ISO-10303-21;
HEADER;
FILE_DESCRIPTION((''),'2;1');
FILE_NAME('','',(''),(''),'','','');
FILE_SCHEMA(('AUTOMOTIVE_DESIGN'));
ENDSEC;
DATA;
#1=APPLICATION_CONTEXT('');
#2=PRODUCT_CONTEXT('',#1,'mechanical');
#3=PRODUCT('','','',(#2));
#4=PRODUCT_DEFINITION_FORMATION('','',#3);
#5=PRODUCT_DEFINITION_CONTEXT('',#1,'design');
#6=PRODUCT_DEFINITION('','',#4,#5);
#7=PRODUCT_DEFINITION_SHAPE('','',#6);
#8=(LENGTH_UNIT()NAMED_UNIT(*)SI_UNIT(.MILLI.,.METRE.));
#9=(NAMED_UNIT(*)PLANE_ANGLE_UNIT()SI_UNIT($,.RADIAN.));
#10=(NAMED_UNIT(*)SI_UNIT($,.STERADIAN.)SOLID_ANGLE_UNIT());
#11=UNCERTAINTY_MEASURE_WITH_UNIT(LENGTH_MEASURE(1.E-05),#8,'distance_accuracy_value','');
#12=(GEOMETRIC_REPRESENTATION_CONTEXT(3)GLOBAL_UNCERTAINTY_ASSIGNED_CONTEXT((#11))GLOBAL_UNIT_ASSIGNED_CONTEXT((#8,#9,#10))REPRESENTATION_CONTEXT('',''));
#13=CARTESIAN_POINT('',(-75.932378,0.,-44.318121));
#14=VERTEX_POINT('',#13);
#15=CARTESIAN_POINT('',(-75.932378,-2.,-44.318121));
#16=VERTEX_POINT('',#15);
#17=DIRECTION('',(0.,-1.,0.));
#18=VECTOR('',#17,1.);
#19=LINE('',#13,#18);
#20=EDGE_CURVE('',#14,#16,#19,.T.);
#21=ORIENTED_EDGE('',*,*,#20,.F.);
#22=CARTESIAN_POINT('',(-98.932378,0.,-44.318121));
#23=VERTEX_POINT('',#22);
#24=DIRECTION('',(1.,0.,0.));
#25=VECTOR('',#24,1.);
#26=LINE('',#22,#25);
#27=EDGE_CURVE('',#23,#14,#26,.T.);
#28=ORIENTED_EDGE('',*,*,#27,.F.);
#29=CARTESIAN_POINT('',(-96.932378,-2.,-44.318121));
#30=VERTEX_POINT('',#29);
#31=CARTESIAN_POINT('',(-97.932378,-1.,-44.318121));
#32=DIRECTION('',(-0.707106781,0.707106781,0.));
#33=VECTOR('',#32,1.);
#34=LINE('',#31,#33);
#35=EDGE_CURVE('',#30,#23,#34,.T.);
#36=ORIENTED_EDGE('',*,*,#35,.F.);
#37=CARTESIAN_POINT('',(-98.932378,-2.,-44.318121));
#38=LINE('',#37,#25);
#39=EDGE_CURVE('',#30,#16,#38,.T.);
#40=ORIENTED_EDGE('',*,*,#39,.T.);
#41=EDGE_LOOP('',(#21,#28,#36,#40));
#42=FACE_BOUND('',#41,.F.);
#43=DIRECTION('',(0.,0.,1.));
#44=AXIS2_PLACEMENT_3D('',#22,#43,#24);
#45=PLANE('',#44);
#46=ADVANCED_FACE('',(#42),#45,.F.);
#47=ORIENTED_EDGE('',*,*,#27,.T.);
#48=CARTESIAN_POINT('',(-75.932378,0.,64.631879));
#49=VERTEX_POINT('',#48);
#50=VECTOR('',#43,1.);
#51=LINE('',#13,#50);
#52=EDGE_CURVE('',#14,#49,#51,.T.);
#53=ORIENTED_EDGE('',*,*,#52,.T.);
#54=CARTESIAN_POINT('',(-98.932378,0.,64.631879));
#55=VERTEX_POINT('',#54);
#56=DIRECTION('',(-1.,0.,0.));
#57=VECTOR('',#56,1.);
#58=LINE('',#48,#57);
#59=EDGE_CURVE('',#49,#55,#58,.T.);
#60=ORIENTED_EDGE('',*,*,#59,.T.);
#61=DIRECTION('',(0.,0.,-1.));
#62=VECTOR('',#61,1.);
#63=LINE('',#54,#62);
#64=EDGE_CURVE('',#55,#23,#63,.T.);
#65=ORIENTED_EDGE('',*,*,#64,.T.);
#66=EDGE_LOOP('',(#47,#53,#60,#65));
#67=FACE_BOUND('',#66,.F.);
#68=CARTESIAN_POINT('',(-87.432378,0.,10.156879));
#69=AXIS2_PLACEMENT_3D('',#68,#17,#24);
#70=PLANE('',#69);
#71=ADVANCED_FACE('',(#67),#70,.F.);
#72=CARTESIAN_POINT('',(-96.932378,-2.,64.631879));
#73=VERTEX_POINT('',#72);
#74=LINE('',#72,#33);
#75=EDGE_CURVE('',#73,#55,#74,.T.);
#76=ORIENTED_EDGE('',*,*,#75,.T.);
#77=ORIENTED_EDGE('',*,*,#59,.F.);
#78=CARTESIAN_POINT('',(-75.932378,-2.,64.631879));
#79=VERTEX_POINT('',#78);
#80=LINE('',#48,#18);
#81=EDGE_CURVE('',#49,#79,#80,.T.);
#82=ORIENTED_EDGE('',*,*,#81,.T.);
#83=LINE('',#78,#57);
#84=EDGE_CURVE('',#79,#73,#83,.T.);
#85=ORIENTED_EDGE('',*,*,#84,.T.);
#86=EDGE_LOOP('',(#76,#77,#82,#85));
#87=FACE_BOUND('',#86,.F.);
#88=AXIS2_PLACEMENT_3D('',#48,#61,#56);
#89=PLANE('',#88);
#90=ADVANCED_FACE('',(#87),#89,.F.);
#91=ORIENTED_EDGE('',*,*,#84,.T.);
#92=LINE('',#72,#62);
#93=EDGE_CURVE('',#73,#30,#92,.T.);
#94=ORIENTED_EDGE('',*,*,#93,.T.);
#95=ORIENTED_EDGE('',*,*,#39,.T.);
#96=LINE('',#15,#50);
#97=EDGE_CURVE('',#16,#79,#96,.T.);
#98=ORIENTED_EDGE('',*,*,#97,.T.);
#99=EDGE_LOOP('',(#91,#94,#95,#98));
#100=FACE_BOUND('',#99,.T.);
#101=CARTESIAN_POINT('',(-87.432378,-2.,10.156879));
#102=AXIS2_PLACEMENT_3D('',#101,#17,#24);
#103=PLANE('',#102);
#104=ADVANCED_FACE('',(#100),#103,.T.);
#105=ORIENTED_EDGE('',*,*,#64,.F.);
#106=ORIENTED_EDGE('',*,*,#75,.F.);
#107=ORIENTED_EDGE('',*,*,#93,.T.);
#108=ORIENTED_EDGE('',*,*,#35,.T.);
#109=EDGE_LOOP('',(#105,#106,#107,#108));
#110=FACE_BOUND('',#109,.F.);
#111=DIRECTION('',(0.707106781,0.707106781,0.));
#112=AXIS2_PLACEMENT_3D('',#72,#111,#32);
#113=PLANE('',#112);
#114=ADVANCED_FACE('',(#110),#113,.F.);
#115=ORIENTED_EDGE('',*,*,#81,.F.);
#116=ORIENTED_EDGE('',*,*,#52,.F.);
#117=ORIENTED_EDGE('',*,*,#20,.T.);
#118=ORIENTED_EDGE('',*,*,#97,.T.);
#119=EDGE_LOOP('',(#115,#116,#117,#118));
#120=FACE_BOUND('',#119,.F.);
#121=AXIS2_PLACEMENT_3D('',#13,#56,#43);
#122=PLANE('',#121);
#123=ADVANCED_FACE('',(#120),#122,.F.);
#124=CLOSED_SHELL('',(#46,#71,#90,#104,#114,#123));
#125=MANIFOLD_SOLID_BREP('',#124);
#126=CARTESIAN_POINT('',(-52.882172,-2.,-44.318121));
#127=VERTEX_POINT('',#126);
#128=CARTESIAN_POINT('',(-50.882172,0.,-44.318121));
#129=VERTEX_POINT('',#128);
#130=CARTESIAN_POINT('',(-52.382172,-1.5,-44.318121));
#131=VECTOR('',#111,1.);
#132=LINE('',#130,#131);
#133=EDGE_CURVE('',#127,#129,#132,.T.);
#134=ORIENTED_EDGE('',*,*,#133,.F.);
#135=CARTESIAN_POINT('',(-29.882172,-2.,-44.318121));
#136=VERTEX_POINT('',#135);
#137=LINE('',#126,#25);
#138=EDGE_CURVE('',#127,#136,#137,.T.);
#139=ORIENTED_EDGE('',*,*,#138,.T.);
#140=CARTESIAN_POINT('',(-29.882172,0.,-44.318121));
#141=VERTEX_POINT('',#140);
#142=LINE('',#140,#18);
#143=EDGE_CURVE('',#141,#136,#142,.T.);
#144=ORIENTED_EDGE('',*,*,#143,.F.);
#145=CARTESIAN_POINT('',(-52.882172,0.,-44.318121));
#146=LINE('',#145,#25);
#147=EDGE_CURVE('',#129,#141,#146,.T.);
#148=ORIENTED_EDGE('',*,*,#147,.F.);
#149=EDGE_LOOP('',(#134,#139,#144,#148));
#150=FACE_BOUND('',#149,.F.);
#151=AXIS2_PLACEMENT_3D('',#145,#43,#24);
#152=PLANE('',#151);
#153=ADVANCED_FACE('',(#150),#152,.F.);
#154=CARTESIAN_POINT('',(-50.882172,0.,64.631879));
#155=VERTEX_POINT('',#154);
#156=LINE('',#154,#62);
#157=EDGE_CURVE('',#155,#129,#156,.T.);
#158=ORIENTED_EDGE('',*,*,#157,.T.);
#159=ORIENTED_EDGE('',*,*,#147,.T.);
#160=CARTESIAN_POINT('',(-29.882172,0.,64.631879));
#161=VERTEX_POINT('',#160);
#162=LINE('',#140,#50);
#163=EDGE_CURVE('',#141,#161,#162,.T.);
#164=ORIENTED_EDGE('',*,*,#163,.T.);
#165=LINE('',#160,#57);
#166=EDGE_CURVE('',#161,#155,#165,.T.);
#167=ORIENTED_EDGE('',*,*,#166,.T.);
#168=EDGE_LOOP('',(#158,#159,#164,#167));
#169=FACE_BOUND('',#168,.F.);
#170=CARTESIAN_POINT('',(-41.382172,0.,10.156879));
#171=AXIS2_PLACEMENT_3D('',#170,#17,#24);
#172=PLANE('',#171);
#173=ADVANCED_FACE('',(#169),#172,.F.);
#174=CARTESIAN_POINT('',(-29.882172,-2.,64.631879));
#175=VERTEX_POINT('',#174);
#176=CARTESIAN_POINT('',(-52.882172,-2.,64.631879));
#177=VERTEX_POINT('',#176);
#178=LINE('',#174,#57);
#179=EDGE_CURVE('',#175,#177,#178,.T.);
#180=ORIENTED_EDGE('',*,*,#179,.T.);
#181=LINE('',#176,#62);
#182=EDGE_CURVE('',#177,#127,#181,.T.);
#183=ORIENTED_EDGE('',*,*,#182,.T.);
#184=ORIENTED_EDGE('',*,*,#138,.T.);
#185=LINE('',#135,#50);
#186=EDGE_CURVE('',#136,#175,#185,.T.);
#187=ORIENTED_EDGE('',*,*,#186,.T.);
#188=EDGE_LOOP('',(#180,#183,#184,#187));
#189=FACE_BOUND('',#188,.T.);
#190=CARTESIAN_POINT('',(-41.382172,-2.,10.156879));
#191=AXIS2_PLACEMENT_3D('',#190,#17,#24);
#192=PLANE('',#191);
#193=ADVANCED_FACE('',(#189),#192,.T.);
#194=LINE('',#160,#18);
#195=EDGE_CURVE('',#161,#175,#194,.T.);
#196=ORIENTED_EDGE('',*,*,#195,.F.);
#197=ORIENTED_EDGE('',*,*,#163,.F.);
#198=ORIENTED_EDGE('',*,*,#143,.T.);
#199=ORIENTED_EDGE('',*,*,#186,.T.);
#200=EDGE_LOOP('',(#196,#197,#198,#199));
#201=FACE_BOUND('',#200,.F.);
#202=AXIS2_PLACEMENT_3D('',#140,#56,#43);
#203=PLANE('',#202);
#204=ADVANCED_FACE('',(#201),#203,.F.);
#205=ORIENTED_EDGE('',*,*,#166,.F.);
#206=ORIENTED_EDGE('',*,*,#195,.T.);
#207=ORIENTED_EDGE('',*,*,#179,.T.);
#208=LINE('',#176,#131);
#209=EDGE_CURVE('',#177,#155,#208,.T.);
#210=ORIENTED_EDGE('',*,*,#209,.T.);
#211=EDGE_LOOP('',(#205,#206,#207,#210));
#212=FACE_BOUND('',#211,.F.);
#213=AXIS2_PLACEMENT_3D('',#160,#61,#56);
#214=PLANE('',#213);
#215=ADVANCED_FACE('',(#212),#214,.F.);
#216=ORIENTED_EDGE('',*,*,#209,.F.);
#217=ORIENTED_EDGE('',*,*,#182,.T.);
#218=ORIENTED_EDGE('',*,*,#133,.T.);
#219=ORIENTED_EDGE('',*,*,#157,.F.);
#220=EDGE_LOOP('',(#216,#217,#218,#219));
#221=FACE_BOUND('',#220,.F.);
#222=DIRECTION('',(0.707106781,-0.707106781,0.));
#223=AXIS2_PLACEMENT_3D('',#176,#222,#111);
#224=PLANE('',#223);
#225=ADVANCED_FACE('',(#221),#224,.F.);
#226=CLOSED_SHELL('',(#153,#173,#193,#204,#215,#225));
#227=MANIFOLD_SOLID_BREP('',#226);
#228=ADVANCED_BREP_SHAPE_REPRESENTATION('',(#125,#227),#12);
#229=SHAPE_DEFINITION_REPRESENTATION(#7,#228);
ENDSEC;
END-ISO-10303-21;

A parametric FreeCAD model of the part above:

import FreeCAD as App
import Part
import Sketcher
Q = App.Units.Quantity

doc = App.newDocument("Part")
body = doc.addObject("PartDesign::Body", "Body")
body.AllowCompound = True

sketch1 = body.newObject("Sketcher::SketchObject", "Sketch")
sketch1.AttachmentSupport = (doc.getObject("XZ_Plane"), [""])
sketch1.MapMode = "FlatFace"
sketch1.addGeometry([
    Part.LineSegment(App.Vector(-76, -44, 0), App.Vector(-76, 65, 0)),
    Part.LineSegment(App.Vector(-76, 65, 0), App.Vector(-99, 65, 0)),
    Part.LineSegment(App.Vector(-99, 65, 0), App.Vector(-99, -44, 0)),
    Part.LineSegment(App.Vector(-99, -44, 0), App.Vector(-76, -44, 0)),
    Part.LineSegment(App.Vector(-53, -44, 0), App.Vector(-30, -44, 0)),
    Part.LineSegment(App.Vector(-30, -44, 0), App.Vector(-30, 65, 0)),
    Part.LineSegment(App.Vector(-30, 65, 0), App.Vector(-53, 65, 0)),
    Part.LineSegment(App.Vector(-53, 65, 0), App.Vector(-53, -44, 0)),
], False)
sketch1.addConstraint([
    Sketcher.Constraint("Coincident", 0, 2, 1, 1),
    Sketcher.Constraint("Coincident", 1, 2, 2, 1),
    Sketcher.Constraint("Coincident", 2, 2, 3, 1),
    Sketcher.Constraint("Coincident", 3, 2, 0, 1),
    Sketcher.Constraint("Coincident", 4, 2, 5, 1),
    Sketcher.Constraint("Coincident", 5, 2, 6, 1),
    Sketcher.Constraint("Coincident", 6, 2, 7, 1),
    Sketcher.Constraint("Coincident", 7, 2, 4, 1),
    Sketcher.Constraint("Vertical", 0),
    Sketcher.Constraint("Horizontal", 1),
    Sketcher.Constraint("Vertical", 2),
    Sketcher.Constraint("Horizontal", 3),
    Sketcher.Constraint("Horizontal", 4),
    Sketcher.Constraint("Vertical", 5),
    Sketcher.Constraint("Horizontal", 6),
    Sketcher.Constraint("Vertical", 7),
    Sketcher.Constraint("Horizontal", 3, 2, 4, 2),
    Sketcher.Constraint("Horizontal", 1, 2, 5, 2),
    Sketcher.Constraint("Equal", 3, 4),
    Sketcher.Constraint("DistanceX", 1, 2, 1, 1, Q("23 mm")),
    Sketcher.Constraint("DistanceY", 0, 1, 0, 2, Q("108.95 mm")),
    Sketcher.Constraint("DistanceX", 0, 2, -1, 1, Q("75.932378 mm")),
    Sketcher.Constraint("DistanceY", -1, 1, 0, 2, Q("64.631879 mm")),
    Sketcher.Constraint("DistanceX", 6, 2, -1, 1, Q("52.882172 mm")),
])
pad1 = body.newObject("PartDesign::Pad", "Pad")
pad1.Profile = sketch1
pad1.Length = 2

sketch2 = body.newObject("Sketcher::SketchObject", "Sketch001")
sketch2.AttachmentSupport = (doc.getObject("XY_Plane"), [""])
sketch2.MapMode = "FlatFace"
sketch2.AttachmentOffset = App.Placement(App.Vector(0, 0, 64.631879), App.Rotation())
sketch2.addGeometry([
    Part.LineSegment(App.Vector(-98.9, 0, 0), App.Vector(-98.9, -2, 0)),
    Part.LineSegment(App.Vector(-98.9, -2, 0), App.Vector(-96.9, -2, 0)),
    Part.LineSegment(App.Vector(-96.9, -2, 0), App.Vector(-98.9, 0, 0)),
], False)
sketch2.addConstraint([
    Sketcher.Constraint("Coincident", 0, 2, 1, 1),
    Sketcher.Constraint("Coincident", 1, 2, 2, 1),
    Sketcher.Constraint("Coincident", 2, 2, 0, 1),
    Sketcher.Constraint("Vertical", 0),
    Sketcher.Constraint("Horizontal", 1),
    Sketcher.Constraint("PointOnObject", 2, 2, -1),
    Sketcher.Constraint("Equal", 1, 0),
    Sketcher.Constraint("DistanceX", 1, 1, 1, 2, Q("2 mm")),
    Sketcher.Constraint("DistanceX", 0, 2, -1, 1, Q("98.932378 mm")),
])
pocket1 = body.newObject("PartDesign::Pocket", "Pocket")
pocket1.Profile = sketch2
pocket1.Length = 250

sketch3 = body.newObject("Sketcher::SketchObject", "Sketch002")
sketch3.AttachmentSupport = (doc.getObject("XY_Plane"), [""])
sketch3.MapMode = "FlatFace"
sketch3.AttachmentOffset = App.Placement(App.Vector(0, 0, 64.631879), App.Rotation())
sketch3.addGeometry([
    Part.LineSegment(App.Vector(-52.9, -2, 0), App.Vector(-50.9, 0, 0)),
    Part.LineSegment(App.Vector(-50.9, 0, 0), App.Vector(-52.9, 0, 0)),
    Part.LineSegment(App.Vector(-52.9, 0, 0), App.Vector(-52.9, -2, 0)),
], False)
sketch3.addConstraint([
    Sketcher.Constraint("Coincident", 0, 2, 1, 1),
    Sketcher.Constraint("Coincident", 1, 2, 2, 1),
    Sketcher.Constraint("Coincident", 2, 2, 0, 1),
    Sketcher.Constraint("Horizontal", 1),
    Sketcher.Constraint("Vertical", 2),
    Sketcher.Constraint("PointOnObject", 0, 2, -1),
    Sketcher.Constraint("Equal", 1, 2),
    Sketcher.Constraint("DistanceX", 1, 2, 1, 1, Q("2 mm")),
    Sketcher.Constraint("DistanceX", 0, 2, -1, 1, Q("50.882172 mm")),
])
pocket2 = body.newObject("PartDesign::Pocket", "Pocket001")
pocket2.Profile = sketch3
pocket2.Length = 250

doc.recompute()
